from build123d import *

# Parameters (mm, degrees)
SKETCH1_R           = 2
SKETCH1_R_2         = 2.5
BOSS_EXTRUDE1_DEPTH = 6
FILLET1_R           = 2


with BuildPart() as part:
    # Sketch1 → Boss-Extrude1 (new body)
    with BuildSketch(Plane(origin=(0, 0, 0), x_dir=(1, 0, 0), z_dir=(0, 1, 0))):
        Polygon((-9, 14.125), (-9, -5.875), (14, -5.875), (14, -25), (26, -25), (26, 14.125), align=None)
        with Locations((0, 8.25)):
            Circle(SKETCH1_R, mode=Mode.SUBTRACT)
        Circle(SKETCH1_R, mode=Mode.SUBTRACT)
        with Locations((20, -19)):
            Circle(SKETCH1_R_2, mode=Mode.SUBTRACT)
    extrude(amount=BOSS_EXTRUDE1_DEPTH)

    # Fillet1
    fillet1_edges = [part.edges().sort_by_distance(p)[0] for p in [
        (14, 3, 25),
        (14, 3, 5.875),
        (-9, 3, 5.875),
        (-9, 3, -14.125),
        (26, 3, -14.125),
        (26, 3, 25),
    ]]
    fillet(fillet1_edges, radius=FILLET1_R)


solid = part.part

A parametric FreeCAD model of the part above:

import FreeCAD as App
import Part
import Sketcher

V = App.Vector


def edges_at(feature, points):
    """Names of the edges that pass closest to the given points."""
    edges = feature.Shape.Edges
    near = lambda p: min(range(len(edges)), key=lambda i: edges[i].distToShape(Part.Vertex(*p))[0])
    return sorted({f"Edge{near(p) + 1}" for p in points})


def add_polygon(sketch, points):
    """Adds a closed chain of lines whose ends are joined by coincident constraints."""
    first, n = sketch.GeometryCount, len(points)
    for a, b in zip(points, points[1:] + points[:1]):
        sketch.addGeometry(Part.LineSegment(App.Vector(*a, 0), App.Vector(*b, 0)), False)
    for i in range(n):
        sketch.addConstraint(Sketcher.Constraint("Coincident", first + i, 2, first + (i + 1) % n, 1))

doc = App.newDocument("Part")
params = doc.addObject("Spreadsheet::Sheet", "Params")
for row, (alias, value) in enumerate([
    ("sketch1_diameter", "5 mm"),
    ("sketch1_diameter2", "4 mm"),
    ("sketch1_width", "23 mm"),
    ("sketch1_width2", "12 mm"),
    ("sketch1_height", "20 mm"),
    ("pad1_length", "6 mm"),
    ("fillet_radius", "2 mm"),
], start=1):
    params.set(f"A{row}", alias)
    params.set(f"B{row}", "=" + value)
    params.setAlias(f"B{row}", alias)

body = doc.addObject("PartDesign::Body", "Body")

# Sketch on XZ plane
sketch1 = body.newObject("Sketcher::SketchObject", "Sketch")
sketch1.AttachmentSupport = (doc.getObject("XZ_Plane"), [""])
sketch1.MapMode = "FlatFace"
add_polygon(sketch1, [(-9, -14.125), (-9, 5.875), (14, 5.875), (14, 25), (26, 25), (26, -14.125)])  # lines 0-5
sketch1.addGeometry(Part.Circle(V(20, 19, 0), V(0, 0, 1), 2.5), False)  # 6
sketch1.addGeometry(Part.Circle(V(0, 0, 0), V(0, 0, 1), 2), False)  # 7
sketch1.addGeometry(Part.Circle(V(0, -8.25, 0), V(0, 0, 1), 2), False)  # 8
sketch1.addConstraint([
    Sketcher.Constraint("Vertical", 0),
    Sketcher.Constraint("Horizontal", 1),
    Sketcher.Constraint("Vertical", 2),
    Sketcher.Constraint("Horizontal", 3),
    Sketcher.Constraint("Vertical", 4),
    Sketcher.Constraint("Horizontal", 5),
    Sketcher.Constraint("Coincident", 7, 3, -1, 1),
    Sketcher.Constraint("Equal", 7, 8),
    Sketcher.Constraint("PointOnObject", 8, 3, -2),
    Sketcher.Constraint("Diameter", 6, 5.0),
    Sketcher.Constraint("Diameter", 7, 4.0),
    Sketcher.Constraint("DistanceX", 1, 1, 1, 2, 23.0),
    Sketcher.Constraint("DistanceX", 3, 1, 3, 2, 12.0),
    Sketcher.Constraint("DistanceY", 0, 1, 0, 2, 20.0),
    Sketcher.Constraint("DistanceX", -1, 1, 6, 3, 20.0),
    Sketcher.Constraint("DistanceY", -1, 1, 6, 3, 19.0),
    Sketcher.Constraint("DistanceX", 0, 2, -1, 1, 9.0),
    Sketcher.Constraint("DistanceY", -1, 1, 2, 2, 25.0),
    Sketcher.Constraint("DistanceY", 2, 1, 2, 2, 19.125),
    Sketcher.Constraint("DistanceY", 8, 3, -1, 1, 8.25),
])
sketch1.setExpression("Constraints[15]", "Params.sketch1_diameter")
sketch1.setExpression("Constraints[16]", "Params.sketch1_diameter2")
sketch1.setExpression("Constraints[17]", "Params.sketch1_width")
sketch1.setExpression("Constraints[18]", "Params.sketch1_width2")
sketch1.setExpression("Constraints[19]", "Params.sketch1_height")
pad1 = body.newObject("PartDesign::Pad", "Pad")
pad1.Profile = sketch1
pad1.setExpression("Length", "Params.pad1_length")
pad1.Reversed = True
doc.recompute()

fillet = body.newObject("PartDesign::Fillet", "Fillet")
fillet.Base = (pad1, edges_at(pad1, [
    (14, 3, 25),
    (14, 3, 5.875),
    (-9, 3, 5.875),
    (-9, 3, -14.125),
    (26, 3, -14.125),
    (26, 3, 25),
]))
fillet.setExpression("Radius", "Params.fillet_radius")

doc.recompute()
